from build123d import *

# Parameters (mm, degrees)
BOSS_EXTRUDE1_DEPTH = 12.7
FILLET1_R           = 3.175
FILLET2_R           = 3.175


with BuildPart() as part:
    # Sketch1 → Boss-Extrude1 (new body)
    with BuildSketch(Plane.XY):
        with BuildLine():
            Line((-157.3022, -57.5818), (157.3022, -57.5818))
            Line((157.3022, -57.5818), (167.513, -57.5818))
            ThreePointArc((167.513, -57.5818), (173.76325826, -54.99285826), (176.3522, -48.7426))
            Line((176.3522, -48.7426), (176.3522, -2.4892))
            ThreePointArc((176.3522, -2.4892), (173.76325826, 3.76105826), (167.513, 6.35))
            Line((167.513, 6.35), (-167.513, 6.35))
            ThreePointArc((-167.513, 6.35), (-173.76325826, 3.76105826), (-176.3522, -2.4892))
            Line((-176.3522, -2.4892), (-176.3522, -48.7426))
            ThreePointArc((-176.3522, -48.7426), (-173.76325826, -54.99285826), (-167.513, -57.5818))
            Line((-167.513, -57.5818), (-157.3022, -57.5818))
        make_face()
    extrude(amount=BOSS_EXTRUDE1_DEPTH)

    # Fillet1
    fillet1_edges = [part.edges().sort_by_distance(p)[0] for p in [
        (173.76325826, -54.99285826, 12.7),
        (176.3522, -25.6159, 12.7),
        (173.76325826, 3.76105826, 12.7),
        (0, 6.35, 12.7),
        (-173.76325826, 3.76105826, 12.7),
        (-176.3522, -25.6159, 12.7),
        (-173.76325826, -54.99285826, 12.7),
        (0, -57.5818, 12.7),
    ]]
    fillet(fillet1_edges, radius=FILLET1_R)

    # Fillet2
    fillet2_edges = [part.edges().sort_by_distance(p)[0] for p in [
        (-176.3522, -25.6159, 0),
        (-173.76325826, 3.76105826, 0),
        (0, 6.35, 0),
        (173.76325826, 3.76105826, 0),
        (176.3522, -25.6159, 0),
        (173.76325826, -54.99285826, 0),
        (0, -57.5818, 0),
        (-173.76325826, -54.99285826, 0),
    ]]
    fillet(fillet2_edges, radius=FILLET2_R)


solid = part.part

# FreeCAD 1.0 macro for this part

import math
import FreeCAD as App
import Part
import Sketcher
from FreeCAD import Vector
Q = App.Units.Quantity


def edges_at(feature, points):
    """Names of the edges that pass closest to the given points."""
    edges = feature.Shape.Edges
    near = lambda p: min(range(len(edges)), key=lambda i: edges[i].distToShape(Part.Vertex(*p))[0])
    return sorted({f"Edge{near(p) + 1}" for p in points})

doc = App.newDocument("Part")
body = doc.addObject("PartDesign::Body", "Body")

# Sketch on XY plane
sketch1 = body.newObject("Sketcher::SketchObject", "Sketch")
sketch1.AttachmentSupport = (doc.getObject("XY_Plane"), [""])
sketch1.MapMode = "FlatFace"
sketch1.addGeometry([
    Part.ArcOfCircle(Part.Circle(Vector(168, -49, 0), Vector(0, 0, 1), 9), math.radians(-90), math.radians(0)),  # 0
    Part.LineSegment(Vector(176, -49, 0), Vector(176, -2, 0)),  # 1
    Part.ArcOfCircle(Part.Circle(Vector(168, -2, 0), Vector(0, 0, 1), 9), math.radians(0), math.radians(90)),  # 2
    Part.LineSegment(Vector(168, 6, 0), Vector(-168, 6, 0)),  # 3
    Part.ArcOfCircle(Part.Circle(Vector(-168, -2, 0), Vector(0, 0, 1), 9), math.radians(90), math.radians(180)),  # 4
    Part.LineSegment(Vector(-176, -2, 0), Vector(-176, -49, 0)),  # 5
    Part.ArcOfCircle(Part.Circle(Vector(-168, -49, 0), Vector(0, 0, 1), 9), math.radians(-180), math.radians(-90)),  # 6
    Part.LineSegment(Vector(-168, -58, 0), Vector(168, -58, 0)),  # 7
], False)
sketch1.addConstraint([
    Sketcher.Constraint("Tangent", 0, 2, 1, 1),
    Sketcher.Constraint("Tangent", 1, 2, 2, 1),
    Sketcher.Constraint("Tangent", 2, 2, 3, 1),
    Sketcher.Constraint("Tangent", 3, 2, 4, 1),
    Sketcher.Constraint("Tangent", 4, 2, 5, 1),
    Sketcher.Constraint("Tangent", 5, 2, 6, 1),
    Sketcher.Constraint("Tangent", 6, 2, 7, 1),
    Sketcher.Constraint("Tangent", 7, 2, 0, 1),
    Sketcher.Constraint("Vertical", 1),
    Sketcher.Constraint("Horizontal", 3),
    Sketcher.Constraint("Vertical", 5),
    Sketcher.Constraint("Horizontal", 7),
    Sketcher.Constraint("Equal", 0, 2),
    Sketcher.Constraint("Equal", 2, 4),
    Sketcher.Constraint("Equal", 4, 6),
    Sketcher.Constraint("Radius", 0, Q("0.348 in")),
    Sketcher.Constraint("DistanceX", 3, 2, 3, 1, Q("13.19 in")),
    Sketcher.Constraint("DistanceY", 1, 1, 1, 2, Q("1.821 in")),
    Sketcher.Constraint("DistanceY", -1, 1, 2, 2, Q("0.25 in")),
    Sketcher.Constraint("DistanceX", -1, 1, 0, 3, Q("6.595 in")),
])
pad1 = body.newObject("PartDesign::Pad", "Pad")
pad1.Profile = sketch1
pad1.Length = Q("0.5 in")
doc.recompute()

fillet = body.newObject("PartDesign::Fillet", "Fillet")
fillet.Base = (pad1, edges_at(pad1, [
    (173.763, -54.993, 12.7),
    (176.352, -25.616, 12.7),
    (173.763, 3.761, 12.7),
    (0, 6.35, 12.7),
    (-173.763, 3.761, 12.7),
    (-176.352, -25.616, 12.7),
    (-173.763, -54.993, 12.7),
    (0, -57.582, 12.7),
]))
fillet.Radius = Q("0.125 in")
doc.recompute()

fillet2 = body.newObject("PartDesign::Fillet", "Fillet001")
fillet2.Base = (fillet, edges_at(fillet, [
    (-176.352, -25.616, 0),
    (-173.763, 3.761, 0),
    (0, 6.35, 0),
    (173.763, 3.761, 0),
    (176.352, -25.616, 0),
    (173.763, -54.993, 0),
    (0, -57.582, 0),
    (-173.763, -54.993, 0),
]))
fillet2.Radius = Q("0.125 in")

doc.recompute()
